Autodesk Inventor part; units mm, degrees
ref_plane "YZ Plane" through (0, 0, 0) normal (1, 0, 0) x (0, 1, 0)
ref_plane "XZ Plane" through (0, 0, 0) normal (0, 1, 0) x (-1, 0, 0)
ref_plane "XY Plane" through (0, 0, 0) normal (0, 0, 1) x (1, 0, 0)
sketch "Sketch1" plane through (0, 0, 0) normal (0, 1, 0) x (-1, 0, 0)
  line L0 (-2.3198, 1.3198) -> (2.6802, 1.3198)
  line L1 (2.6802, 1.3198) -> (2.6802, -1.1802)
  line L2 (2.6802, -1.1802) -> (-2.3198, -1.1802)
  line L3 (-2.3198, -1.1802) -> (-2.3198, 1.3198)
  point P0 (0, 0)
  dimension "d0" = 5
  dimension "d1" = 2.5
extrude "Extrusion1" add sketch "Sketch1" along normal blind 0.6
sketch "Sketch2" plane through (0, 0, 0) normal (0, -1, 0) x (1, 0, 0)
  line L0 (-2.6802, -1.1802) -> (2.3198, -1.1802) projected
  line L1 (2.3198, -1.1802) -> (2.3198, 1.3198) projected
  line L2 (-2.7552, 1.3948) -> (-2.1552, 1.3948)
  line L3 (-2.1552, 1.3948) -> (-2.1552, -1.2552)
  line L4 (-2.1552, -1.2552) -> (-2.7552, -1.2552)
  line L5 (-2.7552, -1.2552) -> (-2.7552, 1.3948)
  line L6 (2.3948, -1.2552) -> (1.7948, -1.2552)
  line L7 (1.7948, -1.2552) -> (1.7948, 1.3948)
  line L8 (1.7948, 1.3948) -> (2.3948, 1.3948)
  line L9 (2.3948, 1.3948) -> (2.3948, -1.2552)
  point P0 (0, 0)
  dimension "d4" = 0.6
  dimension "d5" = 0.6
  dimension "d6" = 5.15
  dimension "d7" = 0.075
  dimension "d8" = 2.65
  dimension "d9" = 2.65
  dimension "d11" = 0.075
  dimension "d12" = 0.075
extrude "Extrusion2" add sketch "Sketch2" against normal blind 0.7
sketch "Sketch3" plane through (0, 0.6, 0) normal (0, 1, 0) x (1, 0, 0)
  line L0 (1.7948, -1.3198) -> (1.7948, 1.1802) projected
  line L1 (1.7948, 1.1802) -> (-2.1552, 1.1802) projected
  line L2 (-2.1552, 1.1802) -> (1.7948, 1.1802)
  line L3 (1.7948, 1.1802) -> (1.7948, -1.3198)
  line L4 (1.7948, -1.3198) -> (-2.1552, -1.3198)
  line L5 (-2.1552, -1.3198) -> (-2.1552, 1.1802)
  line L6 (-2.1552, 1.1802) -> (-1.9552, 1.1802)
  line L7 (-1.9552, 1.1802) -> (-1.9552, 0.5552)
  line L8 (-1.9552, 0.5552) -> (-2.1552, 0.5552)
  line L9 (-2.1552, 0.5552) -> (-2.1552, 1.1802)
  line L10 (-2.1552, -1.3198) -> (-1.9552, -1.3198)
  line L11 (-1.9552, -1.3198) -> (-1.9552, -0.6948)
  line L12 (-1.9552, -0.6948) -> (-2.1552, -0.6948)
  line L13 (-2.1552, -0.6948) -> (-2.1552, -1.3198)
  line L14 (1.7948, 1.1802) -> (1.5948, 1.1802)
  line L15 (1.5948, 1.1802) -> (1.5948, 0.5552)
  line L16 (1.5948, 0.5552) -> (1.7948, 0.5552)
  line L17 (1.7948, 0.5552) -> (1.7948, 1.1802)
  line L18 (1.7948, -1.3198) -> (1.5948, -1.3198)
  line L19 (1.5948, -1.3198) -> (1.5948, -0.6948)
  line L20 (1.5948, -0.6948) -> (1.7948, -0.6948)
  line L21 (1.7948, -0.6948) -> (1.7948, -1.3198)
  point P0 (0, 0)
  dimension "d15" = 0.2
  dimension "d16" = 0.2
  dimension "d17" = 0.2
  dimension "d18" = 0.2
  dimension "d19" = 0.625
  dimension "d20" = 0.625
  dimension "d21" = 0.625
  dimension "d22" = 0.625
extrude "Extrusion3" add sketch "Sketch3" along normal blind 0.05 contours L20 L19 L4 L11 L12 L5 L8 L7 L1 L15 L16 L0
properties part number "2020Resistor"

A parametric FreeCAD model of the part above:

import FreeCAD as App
import Part
import Sketcher
from FreeCAD import Vector
Q = App.Units.Quantity


def add_polygon(sketch, points):
    """Adds a closed chain of lines whose ends are joined by coincident constraints."""
    first, n = sketch.GeometryCount, len(points)
    for a, b in zip(points, points[1:] + points[:1]):
        sketch.addGeometry(Part.LineSegment(App.Vector(*a, 0), App.Vector(*b, 0)), False)
    for i in range(n):
        sketch.addConstraint(Sketcher.Constraint("Coincident", first + i, 2, first + (i + 1) % n, 1))

doc = App.newDocument("Part")
params = doc.addObject("Spreadsheet::Sheet", "Params")
for row, (alias, value) in enumerate([
    ("sketch1_width", "5 mm"),
    ("sketch1_height", "2.5 mm"),
    ("pad1_length", "0.6 mm"),
    ("sketch2_width", "0.6 mm"),
    ("sketch2_height", "2.65 mm"),
    ("pad2_length", "0.7 mm"),
    ("sketch3_width", "0.2 mm"),
    ("sketch3_width2", "3.55 mm"),
    ("sketch3_height", "1.25 mm"),
    ("pad3_length", "0.05 mm"),
], start=1):
    params.set(f"A{row}", alias)
    params.set(f"B{row}", "=" + value)
    params.setAlias(f"B{row}", alias)

body = doc.addObject("PartDesign::Body", "Body")

# Sketch on XZ plane
sketch1 = body.newObject("Sketcher::SketchObject", "Sketch")
sketch1.AttachmentSupport = (doc.getObject("XZ_Plane"), [""])
sketch1.MapMode = "FlatFace"
add_polygon(sketch1, [(-2.6802, 1.3198), (2.3198, 1.3198), (2.3198, -1.1802), (-2.6802, -1.1802)])  # lines 0-3
sketch1.addConstraint([
    Sketcher.Constraint("Horizontal", 0),
    Sketcher.Constraint("Vertical", 1),
    Sketcher.Constraint("Horizontal", 2),
    Sketcher.Constraint("Vertical", 3),
    Sketcher.Constraint("DistanceX", 0, 1, 0, 2, Q("5 mm")),
    Sketcher.Constraint("DistanceY", 1, 2, 1, 1, Q("2.5 mm")),
    Sketcher.Constraint("DistanceX", -1, 1, 0, 2, Q("2.3198 mm")),
    Sketcher.Constraint("DistanceY", -1, 1, 0, 2, Q("1.3198 mm")),
])
sketch1.setExpression("Constraints[8]", "Params.sketch1_width")
sketch1.setExpression("Constraints[9]", "Params.sketch1_height")
pad1 = body.newObject("PartDesign::Pad", "Pad")
pad1.Profile = sketch1
pad1.setExpression("Length", "Params.pad1_length")
pad1.Reversed = True

# Sketch on XZ plane
sketch2 = body.newObject("Sketcher::SketchObject", "Sketch001")
sketch2.AttachmentSupport = (doc.getObject("XZ_Plane"), [""])
sketch2.MapMode = "FlatFace"
add_polygon(sketch2, [(1.7948, 1.3948), (1.7948, -1.2552), (2.3948, -1.2552), (2.3948, 1.3948)])  # lines 0-3
add_polygon(sketch2, [(-2.1552, -1.2552), (-2.1552, 1.3948), (-2.7552, 1.3948), (-2.7552, -1.2552)])  # lines 4-7
sketch2.addConstraint([
    Sketcher.Constraint("Vertical", 0),
    Sketcher.Constraint("Horizontal", 1),
    Sketcher.Constraint("Vertical", 2),
    Sketcher.Constraint("Horizontal", 3),
    Sketcher.Constraint("Vertical", 4),
    Sketcher.Constraint("Horizontal", 5),
    Sketcher.Constraint("Vertical", 6),
    Sketcher.Constraint("Horizontal", 7),
    Sketcher.Constraint("Horizontal", 3, 2, 4, 2),
    Sketcher.Constraint("Horizontal", 1, 2, 6, 2),
    Sketcher.Constraint("Equal", 3, 5),
    Sketcher.Constraint("DistanceX", 1, 1, 1, 2, Q("0.6 mm")),
    Sketcher.Constraint("DistanceY", 0, 2, 0, 1, Q("2.65 mm")),
    Sketcher.Constraint("DistanceX", 5, 2, 2, 2, Q("5.15 mm")),
    Sketcher.Constraint("DistanceX", -1, 1, 0, 2, Q("1.7948 mm")),
    Sketcher.Constraint("DistanceY", 0, 2, -1, 1, Q("1.2552 mm")),
])
sketch2.setExpression("Constraints[19]", "Params.sketch2_width")
sketch2.setExpression("Constraints[20]", "Params.sketch2_height")
pad2 = body.newObject("PartDesign::Pad", "Pad001")
pad2.Profile = sketch2
pad2.setExpression("Length", "Params.pad2_length")
pad2.Reversed = True

# Sketch on XZ plane
sketch3 = body.newObject("Sketcher::SketchObject", "Sketch002")
sketch3.AttachmentSupport = (doc.getObject("XZ_Plane"), [""])
sketch3.MapMode = "FlatFace"
sketch3.AttachmentOffset = App.Placement(Vector(0, 0, -0.6), App.Rotation())
add_polygon(sketch3, [(1.5948, 0.6948), (1.7948, 0.6948), (1.7948, -0.5552), (1.5948, -0.5552), (1.5948, -1.1802), (-1.9552, -1.1802), (-1.9552, -0.5552), (-2.1552, -0.5552), (-2.1552, 0.6948), (-1.9552, 0.6948), (-1.9552, 1.3198), (1.5948, 1.3198)])  # lines 0-11
sketch3.addConstraint([
    Sketcher.Constraint("Horizontal", 0),
    Sketcher.Constraint("Vertical", 1),
    Sketcher.Constraint("Horizontal", 2),
    Sketcher.Constraint("Vertical", 3),
    Sketcher.Constraint("Horizontal", 4),
    Sketcher.Constraint("Vertical", 5),
    Sketcher.Constraint("Horizontal", 6),
    Sketcher.Constraint("Vertical", 7),
    Sketcher.Constraint("Horizontal", 8),
    Sketcher.Constraint("Vertical", 9),
    Sketcher.Constraint("Horizontal", 10),
    Sketcher.Constraint("Vertical", 11),
    Sketcher.Constraint("Horizontal", 2, 2, 5, 2),
    Sketcher.Constraint("Horizontal", 0, 2, 7, 2),
    Sketcher.Constraint("Vertical", 5, 2, 8, 2),
    Sketcher.Constraint("Vertical", 3, 2, 10, 2),
    Sketcher.Constraint("Equal", 2, 6),
    Sketcher.Constraint("Equal", 5, 9),
    Sketcher.Constraint("DistanceX", 0, 1, 0, 2, Q("0.2 mm")),
    Sketcher.Constraint("DistanceY", 3, 2, 3, 1, Q("0.625 mm")),
    Sketcher.Constraint("DistanceX", 4, 2, 4, 1, Q("3.55 mm")),
    Sketcher.Constraint("DistanceY", 1, 2, 1, 1, Q("1.25 mm")),
    Sketcher.Constraint("DistanceX", -1, 1, 0, 2, Q("1.7948 mm")),
    Sketcher.Constraint("DistanceY", -1, 1, 0, 2, Q("0.6948 mm")),
])
sketch3.setExpression("Constraints[30]", "Params.sketch3_width")
sketch3.setExpression("Constraints[32]", "Params.sketch3_width2")
sketch3.setExpression("Constraints[33]", "Params.sketch3_height")
pad3 = body.newObject("PartDesign::Pad", "Pad002")
pad3.Profile = sketch3
pad3.setExpression("Length", "Params.pad3_length")
pad3.Reversed = True

doc.recompute()
